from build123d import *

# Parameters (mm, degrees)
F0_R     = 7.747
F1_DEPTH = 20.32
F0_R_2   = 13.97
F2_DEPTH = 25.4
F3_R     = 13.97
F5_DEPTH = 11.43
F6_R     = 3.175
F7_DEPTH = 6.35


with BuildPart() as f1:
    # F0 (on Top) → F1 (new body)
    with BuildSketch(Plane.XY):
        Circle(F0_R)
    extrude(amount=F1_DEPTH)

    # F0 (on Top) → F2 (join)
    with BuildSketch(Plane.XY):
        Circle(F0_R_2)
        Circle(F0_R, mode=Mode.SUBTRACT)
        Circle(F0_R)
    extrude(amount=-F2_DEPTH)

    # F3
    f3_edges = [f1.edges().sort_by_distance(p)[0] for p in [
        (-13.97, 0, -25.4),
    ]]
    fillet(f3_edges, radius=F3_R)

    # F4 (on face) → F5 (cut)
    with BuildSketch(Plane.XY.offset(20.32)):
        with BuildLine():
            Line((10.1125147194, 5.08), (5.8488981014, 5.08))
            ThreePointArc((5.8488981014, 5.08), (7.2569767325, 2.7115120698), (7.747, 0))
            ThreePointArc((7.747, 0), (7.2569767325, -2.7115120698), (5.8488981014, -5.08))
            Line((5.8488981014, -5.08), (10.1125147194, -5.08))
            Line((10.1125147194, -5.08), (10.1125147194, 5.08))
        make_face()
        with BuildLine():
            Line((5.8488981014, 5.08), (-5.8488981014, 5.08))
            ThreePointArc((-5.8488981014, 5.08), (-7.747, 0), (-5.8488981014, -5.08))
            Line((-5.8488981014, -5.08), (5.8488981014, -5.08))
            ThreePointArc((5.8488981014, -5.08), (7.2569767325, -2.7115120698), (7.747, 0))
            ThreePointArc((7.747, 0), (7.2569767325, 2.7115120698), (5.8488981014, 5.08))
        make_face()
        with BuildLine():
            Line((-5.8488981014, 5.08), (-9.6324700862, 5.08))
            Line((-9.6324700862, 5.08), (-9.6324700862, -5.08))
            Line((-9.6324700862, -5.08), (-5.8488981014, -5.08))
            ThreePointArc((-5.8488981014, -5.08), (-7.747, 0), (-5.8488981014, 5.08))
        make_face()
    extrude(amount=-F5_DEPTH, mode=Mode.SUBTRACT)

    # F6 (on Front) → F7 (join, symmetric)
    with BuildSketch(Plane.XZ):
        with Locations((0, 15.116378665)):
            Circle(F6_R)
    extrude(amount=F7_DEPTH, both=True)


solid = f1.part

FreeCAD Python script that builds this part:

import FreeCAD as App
import Part
import Sketcher

V = App.Vector
Q = App.Units.Quantity


def edges_at(feature, points):
    """Names of the edges that pass closest to the given points."""
    edges = feature.Shape.Edges
    near = lambda p: min(range(len(edges)), key=lambda i: edges[i].distToShape(Part.Vertex(*p))[0])
    return sorted({f"Edge{near(p) + 1}" for p in points})

doc = App.newDocument("Part")
body = doc.addObject("PartDesign::Body", "Body")

# Sketch on XY plane
sketch1 = body.newObject("Sketcher::SketchObject", "Sketch")
sketch1.AttachmentSupport = (doc.getObject("XY_Plane"), [""])
sketch1.MapMode = "FlatFace"
sketch1.addGeometry(Part.Circle(V(0, 0, 0), V(0, 0, 1), 8), False)
sketch1.addConstraint([
    Sketcher.Constraint("Coincident", 0, 3, -1, 1),
    Sketcher.Constraint("Diameter", 0, Q("0.61 in")),
])
pad1 = body.newObject("PartDesign::Pad", "Pad")
pad1.Profile = sketch1
pad1.Length = Q("0.8 in")

# Sketch on XY plane
sketch2 = body.newObject("Sketcher::SketchObject", "Sketch001")
sketch2.AttachmentSupport = (doc.getObject("XY_Plane"), [""])
sketch2.MapMode = "FlatFace"
sketch2.addGeometry(Part.Circle(V(0, 0, 0), V(0, 0, 1), 14), False)
sketch2.addConstraint([
    Sketcher.Constraint("Coincident", 0, 3, -1, 1),
    Sketcher.Constraint("Diameter", 0, Q("1.1 in")),
])
pad2 = body.newObject("PartDesign::Pad", "Pad001")
pad2.Profile = sketch2
pad2.Length = Q("1 in")
pad2.Reversed = True
doc.recompute()

fillet = body.newObject("PartDesign::Fillet", "Fillet")
fillet.Base = (pad2, edges_at(pad2, [(-13.97, 0, -25.4)]))
fillet.Radius = Q("0.55 in")

# Sketch on XY plane
sketch3 = body.newObject("Sketcher::SketchObject", "Sketch002")
sketch3.AttachmentSupport = (doc.getObject("XY_Plane"), [""])
sketch3.MapMode = "FlatFace"
sketch3.AttachmentOffset = App.Placement(V(0, 0, 0.8 * 25.4), App.Rotation())
sketch3.addGeometry([
    Part.LineSegment(V(10, 5, 0), V(-10, 5, 0)),
    Part.LineSegment(V(-10, 5, 0), V(-10, -5, 0)),
    Part.LineSegment(V(-10, -5, 0), V(10, -5, 0)),
    Part.LineSegment(V(10, -5, 0), V(10, 5, 0)),
], False)
sketch3.addConstraint([
    Sketcher.Constraint("Coincident", 0, 2, 1, 1),
    Sketcher.Constraint("Coincident", 1, 2, 2, 1),
    Sketcher.Constraint("Coincident", 2, 2, 3, 1),
    Sketcher.Constraint("Coincident", 3, 2, 0, 1),
    Sketcher.Constraint("Horizontal", 0),
    Sketcher.Constraint("Vertical", 1),
    Sketcher.Constraint("Horizontal", 2),
    Sketcher.Constraint("Vertical", 3),
    Sketcher.Constraint("DistanceY", 1, 2, 1, 1, Q("0.4 in")),
    Sketcher.Constraint("DistanceY", -1, 1, 0, 2, Q("0.2 in")),
    Sketcher.Constraint("DistanceX", 0, 2, 0, 1, 19.744985),
    Sketcher.Constraint("DistanceX", 0, 2, -1, 1, 9.63247),
])
pocket1 = body.newObject("PartDesign::Pocket", "Pocket")
pocket1.Profile = sketch3
pocket1.Length = Q("0.45 in")

# Sketch on XZ plane
sketch4 = body.newObject("Sketcher::SketchObject", "Sketch003")
sketch4.AttachmentSupport = (doc.getObject("XZ_Plane"), [""])
sketch4.MapMode = "FlatFace"
sketch4.addGeometry(Part.Circle(V(0, 15.1, 0), V(0, 0, 1), 3.2), False)
sketch4.addConstraint([
    Sketcher.Constraint("PointOnObject", 0, 3, -2),
    Sketcher.Constraint("Diameter", 0, Q("0.25 in")),
    Sketcher.Constraint("DistanceY", -1, 1, 0, 3, 15.116379),
])
pad3 = body.newObject("PartDesign::Pad", "Pad002")
pad3.Profile = sketch4
pad3.Length = Q("0.5 in")
pad3.Midplane = True

doc.recompute()
